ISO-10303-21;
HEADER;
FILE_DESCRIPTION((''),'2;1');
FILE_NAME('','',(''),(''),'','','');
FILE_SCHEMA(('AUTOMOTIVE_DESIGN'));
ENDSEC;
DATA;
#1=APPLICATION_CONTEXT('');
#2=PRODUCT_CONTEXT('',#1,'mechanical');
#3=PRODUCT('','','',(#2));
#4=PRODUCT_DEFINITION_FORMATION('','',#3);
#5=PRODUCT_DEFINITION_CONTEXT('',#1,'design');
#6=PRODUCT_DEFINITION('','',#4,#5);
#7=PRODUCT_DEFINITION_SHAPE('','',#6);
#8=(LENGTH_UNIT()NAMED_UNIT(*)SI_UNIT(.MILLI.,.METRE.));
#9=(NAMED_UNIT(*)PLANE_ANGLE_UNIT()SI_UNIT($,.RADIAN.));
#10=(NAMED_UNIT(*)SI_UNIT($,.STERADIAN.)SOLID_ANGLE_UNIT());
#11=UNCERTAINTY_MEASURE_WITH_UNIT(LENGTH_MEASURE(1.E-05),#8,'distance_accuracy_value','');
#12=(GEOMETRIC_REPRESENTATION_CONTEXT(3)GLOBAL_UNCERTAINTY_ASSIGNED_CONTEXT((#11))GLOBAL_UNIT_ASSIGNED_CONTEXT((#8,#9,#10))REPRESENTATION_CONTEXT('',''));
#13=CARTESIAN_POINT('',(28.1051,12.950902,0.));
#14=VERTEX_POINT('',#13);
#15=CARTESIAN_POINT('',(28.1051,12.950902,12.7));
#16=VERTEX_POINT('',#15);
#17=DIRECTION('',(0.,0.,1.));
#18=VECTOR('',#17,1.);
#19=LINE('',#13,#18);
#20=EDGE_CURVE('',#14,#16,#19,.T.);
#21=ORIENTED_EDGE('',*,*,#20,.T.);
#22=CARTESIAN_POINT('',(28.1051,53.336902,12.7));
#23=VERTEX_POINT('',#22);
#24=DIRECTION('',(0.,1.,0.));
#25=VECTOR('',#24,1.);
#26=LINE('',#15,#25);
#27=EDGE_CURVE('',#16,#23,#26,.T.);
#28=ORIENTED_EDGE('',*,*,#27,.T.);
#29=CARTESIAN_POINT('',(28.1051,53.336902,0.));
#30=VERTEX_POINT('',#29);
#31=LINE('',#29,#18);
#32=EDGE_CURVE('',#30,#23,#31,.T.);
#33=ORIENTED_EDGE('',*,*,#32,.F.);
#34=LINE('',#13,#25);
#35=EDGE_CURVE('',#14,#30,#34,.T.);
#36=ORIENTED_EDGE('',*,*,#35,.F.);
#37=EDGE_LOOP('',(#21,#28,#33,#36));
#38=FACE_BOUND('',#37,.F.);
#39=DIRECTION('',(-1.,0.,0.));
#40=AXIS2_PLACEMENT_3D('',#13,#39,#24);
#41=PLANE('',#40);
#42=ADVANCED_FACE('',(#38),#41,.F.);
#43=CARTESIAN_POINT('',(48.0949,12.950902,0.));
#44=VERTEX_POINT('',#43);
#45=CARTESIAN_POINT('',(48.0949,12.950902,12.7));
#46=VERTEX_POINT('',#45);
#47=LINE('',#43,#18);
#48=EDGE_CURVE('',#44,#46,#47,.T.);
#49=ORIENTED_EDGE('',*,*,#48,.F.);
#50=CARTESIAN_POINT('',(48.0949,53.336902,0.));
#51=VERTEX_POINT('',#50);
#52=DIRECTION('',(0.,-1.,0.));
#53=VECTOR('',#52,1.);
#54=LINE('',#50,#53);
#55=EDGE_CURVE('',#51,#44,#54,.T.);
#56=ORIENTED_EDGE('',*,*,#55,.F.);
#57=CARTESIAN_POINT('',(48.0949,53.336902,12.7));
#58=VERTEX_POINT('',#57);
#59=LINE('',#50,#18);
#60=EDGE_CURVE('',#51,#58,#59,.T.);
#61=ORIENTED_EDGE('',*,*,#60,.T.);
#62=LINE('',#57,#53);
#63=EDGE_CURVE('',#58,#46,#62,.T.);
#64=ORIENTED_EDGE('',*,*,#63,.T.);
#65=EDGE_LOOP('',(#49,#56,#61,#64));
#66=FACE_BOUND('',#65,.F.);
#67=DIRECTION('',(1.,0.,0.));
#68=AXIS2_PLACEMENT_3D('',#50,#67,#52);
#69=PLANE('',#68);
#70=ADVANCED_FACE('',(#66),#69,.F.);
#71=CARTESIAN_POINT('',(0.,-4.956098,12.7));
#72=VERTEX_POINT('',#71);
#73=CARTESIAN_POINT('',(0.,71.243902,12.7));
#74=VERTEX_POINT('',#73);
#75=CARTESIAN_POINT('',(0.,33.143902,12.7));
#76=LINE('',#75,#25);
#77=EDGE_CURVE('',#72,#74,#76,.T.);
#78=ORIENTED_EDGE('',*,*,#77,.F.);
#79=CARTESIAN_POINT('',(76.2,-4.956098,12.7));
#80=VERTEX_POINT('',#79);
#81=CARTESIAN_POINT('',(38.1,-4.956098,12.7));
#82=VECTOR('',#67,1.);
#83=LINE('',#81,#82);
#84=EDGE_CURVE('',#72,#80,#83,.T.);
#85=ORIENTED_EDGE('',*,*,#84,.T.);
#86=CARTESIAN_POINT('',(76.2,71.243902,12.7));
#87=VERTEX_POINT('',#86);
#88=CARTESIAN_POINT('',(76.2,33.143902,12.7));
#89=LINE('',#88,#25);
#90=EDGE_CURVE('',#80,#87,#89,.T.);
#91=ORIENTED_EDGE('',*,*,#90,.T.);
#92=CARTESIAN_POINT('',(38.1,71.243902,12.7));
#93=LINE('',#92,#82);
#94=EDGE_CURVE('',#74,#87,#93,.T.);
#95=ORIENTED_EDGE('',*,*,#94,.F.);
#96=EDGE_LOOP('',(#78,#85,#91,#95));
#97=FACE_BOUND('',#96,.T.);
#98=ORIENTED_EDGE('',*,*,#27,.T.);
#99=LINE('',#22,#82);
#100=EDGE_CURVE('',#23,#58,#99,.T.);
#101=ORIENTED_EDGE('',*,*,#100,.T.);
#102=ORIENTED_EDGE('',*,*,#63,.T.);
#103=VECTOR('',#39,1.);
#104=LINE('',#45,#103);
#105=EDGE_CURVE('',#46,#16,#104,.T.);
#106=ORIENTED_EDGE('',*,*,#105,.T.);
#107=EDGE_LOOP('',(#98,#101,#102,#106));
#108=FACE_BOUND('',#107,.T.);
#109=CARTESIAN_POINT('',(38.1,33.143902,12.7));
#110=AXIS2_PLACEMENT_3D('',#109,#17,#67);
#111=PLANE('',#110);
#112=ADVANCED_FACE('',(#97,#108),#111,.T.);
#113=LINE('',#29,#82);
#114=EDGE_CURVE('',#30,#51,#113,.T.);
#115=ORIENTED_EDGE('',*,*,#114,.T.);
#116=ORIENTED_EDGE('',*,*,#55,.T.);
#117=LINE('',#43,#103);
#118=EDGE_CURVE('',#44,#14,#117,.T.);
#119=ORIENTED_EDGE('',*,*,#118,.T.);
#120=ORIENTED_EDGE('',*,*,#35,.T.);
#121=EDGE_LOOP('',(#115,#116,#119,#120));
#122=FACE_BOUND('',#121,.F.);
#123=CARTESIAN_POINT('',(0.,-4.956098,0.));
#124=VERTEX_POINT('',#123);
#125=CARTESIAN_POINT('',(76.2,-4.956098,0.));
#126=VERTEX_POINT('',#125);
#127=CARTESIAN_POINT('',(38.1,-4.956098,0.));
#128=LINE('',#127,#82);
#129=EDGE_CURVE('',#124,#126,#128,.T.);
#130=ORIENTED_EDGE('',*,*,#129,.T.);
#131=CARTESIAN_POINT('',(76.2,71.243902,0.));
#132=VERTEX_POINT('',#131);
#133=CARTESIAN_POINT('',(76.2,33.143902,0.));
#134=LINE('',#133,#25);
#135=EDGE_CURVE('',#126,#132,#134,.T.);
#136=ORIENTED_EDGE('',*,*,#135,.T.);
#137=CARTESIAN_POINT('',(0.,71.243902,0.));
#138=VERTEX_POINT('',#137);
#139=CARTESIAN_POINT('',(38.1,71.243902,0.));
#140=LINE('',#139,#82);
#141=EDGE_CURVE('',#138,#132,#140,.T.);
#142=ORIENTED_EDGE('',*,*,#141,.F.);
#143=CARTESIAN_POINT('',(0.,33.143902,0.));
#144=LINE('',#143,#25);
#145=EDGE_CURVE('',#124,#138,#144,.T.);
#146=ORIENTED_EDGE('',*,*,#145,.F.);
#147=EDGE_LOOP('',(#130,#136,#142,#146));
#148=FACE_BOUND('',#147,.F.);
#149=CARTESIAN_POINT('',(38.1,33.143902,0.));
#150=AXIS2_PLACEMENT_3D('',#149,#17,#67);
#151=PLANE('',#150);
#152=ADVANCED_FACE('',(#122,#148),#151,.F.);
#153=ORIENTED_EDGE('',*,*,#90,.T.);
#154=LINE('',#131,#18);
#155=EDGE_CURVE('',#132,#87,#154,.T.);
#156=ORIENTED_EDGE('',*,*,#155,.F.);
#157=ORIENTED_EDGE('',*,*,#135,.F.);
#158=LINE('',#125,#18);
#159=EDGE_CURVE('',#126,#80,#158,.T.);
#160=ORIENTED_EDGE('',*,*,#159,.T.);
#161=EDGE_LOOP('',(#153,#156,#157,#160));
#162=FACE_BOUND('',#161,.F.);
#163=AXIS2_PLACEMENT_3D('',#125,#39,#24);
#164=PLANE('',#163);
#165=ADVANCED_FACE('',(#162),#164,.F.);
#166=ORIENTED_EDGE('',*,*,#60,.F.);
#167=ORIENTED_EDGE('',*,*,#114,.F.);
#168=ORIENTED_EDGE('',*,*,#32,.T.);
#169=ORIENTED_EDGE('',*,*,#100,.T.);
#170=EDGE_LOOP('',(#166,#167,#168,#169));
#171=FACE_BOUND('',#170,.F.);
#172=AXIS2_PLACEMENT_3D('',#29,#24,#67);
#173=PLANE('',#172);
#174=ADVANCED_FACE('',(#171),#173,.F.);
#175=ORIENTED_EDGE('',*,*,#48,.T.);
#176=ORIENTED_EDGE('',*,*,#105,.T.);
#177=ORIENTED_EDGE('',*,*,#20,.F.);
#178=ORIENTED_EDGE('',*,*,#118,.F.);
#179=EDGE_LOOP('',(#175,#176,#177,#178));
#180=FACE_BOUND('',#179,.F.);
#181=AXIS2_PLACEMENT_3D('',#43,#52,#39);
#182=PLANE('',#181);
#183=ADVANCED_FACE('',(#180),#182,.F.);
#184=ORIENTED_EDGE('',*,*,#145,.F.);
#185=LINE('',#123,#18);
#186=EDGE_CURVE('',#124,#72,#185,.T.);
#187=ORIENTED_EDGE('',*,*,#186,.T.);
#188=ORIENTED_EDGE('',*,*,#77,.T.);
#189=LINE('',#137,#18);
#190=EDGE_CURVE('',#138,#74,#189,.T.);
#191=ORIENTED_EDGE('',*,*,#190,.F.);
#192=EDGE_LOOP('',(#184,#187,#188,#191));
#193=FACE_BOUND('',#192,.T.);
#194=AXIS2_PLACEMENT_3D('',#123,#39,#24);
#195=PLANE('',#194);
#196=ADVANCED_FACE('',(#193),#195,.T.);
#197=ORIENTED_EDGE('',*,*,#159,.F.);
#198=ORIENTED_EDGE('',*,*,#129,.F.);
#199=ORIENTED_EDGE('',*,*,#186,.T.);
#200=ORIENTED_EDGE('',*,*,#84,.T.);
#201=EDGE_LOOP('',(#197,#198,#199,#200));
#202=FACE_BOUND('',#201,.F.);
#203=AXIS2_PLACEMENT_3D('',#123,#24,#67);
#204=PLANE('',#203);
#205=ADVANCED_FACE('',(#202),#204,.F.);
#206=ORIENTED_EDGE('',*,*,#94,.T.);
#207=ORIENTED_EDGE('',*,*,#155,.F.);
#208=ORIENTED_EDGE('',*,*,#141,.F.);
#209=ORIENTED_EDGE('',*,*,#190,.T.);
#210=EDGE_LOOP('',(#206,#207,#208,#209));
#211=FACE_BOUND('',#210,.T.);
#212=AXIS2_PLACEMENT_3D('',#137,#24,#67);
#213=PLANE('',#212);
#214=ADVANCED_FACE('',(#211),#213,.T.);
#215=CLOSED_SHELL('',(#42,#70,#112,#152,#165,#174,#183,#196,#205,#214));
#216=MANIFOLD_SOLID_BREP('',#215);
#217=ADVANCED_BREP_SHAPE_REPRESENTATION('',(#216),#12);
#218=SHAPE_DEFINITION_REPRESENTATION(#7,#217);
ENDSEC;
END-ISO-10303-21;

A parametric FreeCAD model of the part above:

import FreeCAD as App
import Part
import Sketcher

V = App.Vector
Q = App.Units.Quantity


def add_polygon(sketch, points):
    """Adds a closed chain of lines whose ends are joined by coincident constraints."""
    first, n = sketch.GeometryCount, len(points)
    for a, b in zip(points, points[1:] + points[:1]):
        sketch.addGeometry(Part.LineSegment(App.Vector(*a, 0), App.Vector(*b, 0)), False)
    for i in range(n):
        sketch.addConstraint(Sketcher.Constraint("Coincident", first + i, 2, first + (i + 1) % n, 1))

doc = App.newDocument("Part")
params = doc.addObject("Spreadsheet::Sheet", "Params")
for row, (alias, value) in enumerate([
    ("sketch1_width", "3 in"),
    ("sketch1_height", "1.59 in"),
    ("sketch1_width2", "0.787 in"),
    ("pad1_length", "0.5 in"),
], start=1):
    params.set(f"A{row}", alias)
    params.set(f"B{row}", "=" + value)
    params.setAlias(f"B{row}", alias)

body = doc.addObject("PartDesign::Body", "Body")

sketch1 = doc.addObject("Sketcher::SketchObject", "Sketch")
body.addObject(sketch1)
sketch1.AttachmentSupport = (doc.XY_Plane, [""])
sketch1.MapMode = "FlatFace"
add_polygon(sketch1, [(0, 71), (0, -5), (76, -5), (76, 71)])
add_polygon(sketch1, [(28, 13), (28, 53), (48, 53), (48, 13)])
sketch1.addConstraint([
    Sketcher.Constraint("Vertical", 0),
    Sketcher.Constraint("Horizontal", 1),
    Sketcher.Constraint("Vertical", 2),
    Sketcher.Constraint("Horizontal", 3),
    Sketcher.Constraint("Vertical", 4),
    Sketcher.Constraint("Horizontal", 5),
    Sketcher.Constraint("Vertical", 6),
    Sketcher.Constraint("Horizontal", 7),
    Sketcher.Constraint("PointOnObject", 0, 2, -2),
    Sketcher.Constraint("Equal", 3, 0),
    Sketcher.Constraint("DistanceX", 1, 1, 1, 2, Q("3 in")),
    Sketcher.Constraint("DistanceY", 4, 1, 4, 2, Q("1.59 in")),
    Sketcher.Constraint("DistanceX", 5, 1, 5, 2, Q("0.787 in")),
    Sketcher.Constraint("DistanceY", 4, 2, 3, 2, Q("0.705 in")),
    Sketcher.Constraint("DistanceX", -1, 1, 4, 2, Q("1.1065 in")),
    Sketcher.Constraint("DistanceY", -1, 1, 6, 2, 12.950902),
])
sketch1.setExpression("Constraints[18]", "Params.sketch1_width")
sketch1.setExpression("Constraints[19]", "Params.sketch1_height")
sketch1.setExpression("Constraints[20]", "Params.sketch1_width2")
pad1 = doc.addObject("PartDesign::Pad", "Pad")
body.addObject(pad1)
pad1.Profile = sketch1
pad1.setExpression("Length", "Params.pad1_length")

doc.recompute()
